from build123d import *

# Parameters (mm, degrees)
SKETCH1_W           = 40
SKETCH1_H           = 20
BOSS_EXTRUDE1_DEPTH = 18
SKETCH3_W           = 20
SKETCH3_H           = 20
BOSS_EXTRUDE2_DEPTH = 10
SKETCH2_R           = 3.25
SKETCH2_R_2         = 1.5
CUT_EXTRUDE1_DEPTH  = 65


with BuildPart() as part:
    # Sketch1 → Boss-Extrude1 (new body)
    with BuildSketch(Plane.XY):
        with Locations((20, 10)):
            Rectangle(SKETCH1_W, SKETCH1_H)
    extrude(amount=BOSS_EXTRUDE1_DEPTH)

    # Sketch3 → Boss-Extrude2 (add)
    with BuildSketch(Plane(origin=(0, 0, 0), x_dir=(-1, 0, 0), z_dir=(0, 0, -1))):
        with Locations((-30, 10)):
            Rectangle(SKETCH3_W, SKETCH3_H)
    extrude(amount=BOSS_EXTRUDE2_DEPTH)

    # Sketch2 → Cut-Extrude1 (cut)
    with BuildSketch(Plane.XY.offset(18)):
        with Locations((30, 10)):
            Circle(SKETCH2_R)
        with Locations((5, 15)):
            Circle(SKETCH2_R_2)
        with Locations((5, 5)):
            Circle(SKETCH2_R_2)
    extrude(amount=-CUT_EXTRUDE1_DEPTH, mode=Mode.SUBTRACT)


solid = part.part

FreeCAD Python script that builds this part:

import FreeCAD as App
import Part
import Sketcher
from FreeCAD import Vector
Q = App.Units.Quantity

doc = App.newDocument("Part")
params = doc.addObject("Spreadsheet::Sheet", "Params")
for row, (alias, value) in enumerate([
    ("sketch1_width", "40 mm"),
    ("sketch1_height", "20 mm"),
    ("pad1_length", "18 mm"),
    ("sketch2_width", "20 mm"),
    ("pad2_length", "10 mm"),
    ("sketch3_diameter", "3 mm"),
    ("sketch3_diameter2", "6.5 mm"),
    ("pocket1_length", "65 mm"),
], start=1):
    params.set(f"A{row}", alias)
    params.set(f"B{row}", "=" + value)
    params.setAlias(f"B{row}", alias)

body = doc.addObject("PartDesign::Body", "Body")

# Sketch on XY plane
sketch1 = body.newObject("Sketcher::SketchObject", "Sketch")
sketch1.AttachmentSupport = (doc.getObject("XY_Plane"), [""])
sketch1.MapMode = "FlatFace"
sketch1.addGeometry(Part.LineSegment(Vector(0, 20, 0), Vector(0, 0, 0)), False)
sketch1.addGeometry(Part.LineSegment(Vector(0, 0, 0), Vector(40, 0, 0)), False)
sketch1.addGeometry(Part.LineSegment(Vector(40, 0, 0), Vector(40, 20, 0)), False)
sketch1.addGeometry(Part.LineSegment(Vector(40, 20, 0), Vector(0, 20, 0)), False)
sketch1.addConstraint(Sketcher.Constraint("Coincident", 0, 2, 1, 1))
sketch1.addConstraint(Sketcher.Constraint("Coincident", 1, 2, 2, 1))
sketch1.addConstraint(Sketcher.Constraint("Coincident", 2, 2, 3, 1))
sketch1.addConstraint(Sketcher.Constraint("Coincident", 3, 2, 0, 1))
sketch1.addConstraint(Sketcher.Constraint("Vertical", 0))
sketch1.addConstraint(Sketcher.Constraint("Horizontal", 1))
sketch1.addConstraint(Sketcher.Constraint("Vertical", 2))
sketch1.addConstraint(Sketcher.Constraint("Horizontal", 3))
sketch1.addConstraint(Sketcher.Constraint("Coincident", 0, 2, -1, 1))
sketch1.addConstraint(Sketcher.Constraint("DistanceX", 1, 1, 1, 2, Q("40 mm")))
sketch1.addConstraint(Sketcher.Constraint("DistanceY", 0, 2, 0, 1, Q("20 mm")))
sketch1.setExpression("Constraints[9]", "Params.sketch1_width")
sketch1.setExpression("Constraints[10]", "Params.sketch1_height")
pad1 = body.newObject("PartDesign::Pad", "Pad")
pad1.Profile = sketch1
pad1.setExpression("Length", "Params.pad1_length")

# Sketch on XY plane
sketch2 = body.newObject("Sketcher::SketchObject", "Sketch001")
sketch2.AttachmentSupport = (doc.getObject("XY_Plane"), [""])
sketch2.MapMode = "FlatFace"
sketch2.addGeometry(Part.LineSegment(Vector(40, 20, 0), Vector(40, 0, 0)), False)
sketch2.addGeometry(Part.LineSegment(Vector(40, 0, 0), Vector(20, 0, 0)), False)
sketch2.addGeometry(Part.LineSegment(Vector(20, 0, 0), Vector(20, 20, 0)), False)
sketch2.addGeometry(Part.LineSegment(Vector(20, 20, 0), Vector(40, 20, 0)), False)
sketch2.addConstraint(Sketcher.Constraint("Coincident", 0, 2, 1, 1))
sketch2.addConstraint(Sketcher.Constraint("Coincident", 1, 2, 2, 1))
sketch2.addConstraint(Sketcher.Constraint("Coincident", 2, 2, 3, 1))
sketch2.addConstraint(Sketcher.Constraint("Coincident", 3, 2, 0, 1))
sketch2.addConstraint(Sketcher.Constraint("Vertical", 0))
sketch2.addConstraint(Sketcher.Constraint("Horizontal", 1))
sketch2.addConstraint(Sketcher.Constraint("Vertical", 2))
sketch2.addConstraint(Sketcher.Constraint("Horizontal", 3))
sketch2.addConstraint(Sketcher.Constraint("PointOnObject", 0, 2, -1))
sketch2.addConstraint(Sketcher.Constraint("Equal", 3, 0))
sketch2.addConstraint(Sketcher.Constraint("DistanceX", 1, 2, 1, 1, Q("20 mm")))
sketch2.addConstraint(Sketcher.Constraint("DistanceX", -1, 1, 0, 2, Q("40 mm")))
sketch2.setExpression("Constraints[10]", "Params.sketch2_width")
pad2 = body.newObject("PartDesign::Pad", "Pad001")
pad2.Profile = sketch2
pad2.setExpression("Length", "Params.pad2_length")
pad2.Reversed = True

# Sketch on XY plane
sketch3 = body.newObject("Sketcher::SketchObject", "Sketch002")
sketch3.AttachmentSupport = (doc.getObject("XY_Plane"), [""])
sketch3.MapMode = "FlatFace"
sketch3.AttachmentOffset = App.Placement(Vector(0, 0, 18), App.Rotation())
sketch3.addGeometry(Part.Circle(Vector(30, 10, 0), Vector(0, 0, 1), 3.2), False)
sketch3.addGeometry(Part.Circle(Vector(5, 15, 0), Vector(0, 0, 1), 1.5), False)
sketch3.addGeometry(Part.Circle(Vector(5, 5, 0), Vector(0, 0, 1), 1.5), False)
sketch3.addConstraint(Sketcher.Constraint("Equal", 1, 2))
sketch3.addConstraint(Sketcher.Constraint("Vertical", 1, 3, 2, 3))
sketch3.addConstraint(Sketcher.Constraint("Diameter", 1, Q("3 mm")))
sketch3.addConstraint(Sketcher.Constraint("Diameter", 0, Q("6.5 mm")))
sketch3.addConstraint(Sketcher.Constraint("DistanceX", -1, 1, 0, 3, Q("30 mm")))
sketch3.addConstraint(Sketcher.Constraint("DistanceY", -1, 1, 0, 3, Q("10 mm")))
sketch3.addConstraint(Sketcher.Constraint("DistanceX", -1, 1, 1, 3, Q("5 mm")))
sketch3.addConstraint(Sketcher.Constraint("DistanceY", -1, 1, 1, 3, Q("15 mm")))
sketch3.addConstraint(Sketcher.Constraint("DistanceY", -1, 1, 2, 3, Q("5 mm")))
sketch3.setExpression("Constraints[2]", "Params.sketch3_diameter")
sketch3.setExpression("Constraints[3]", "Params.sketch3_diameter2")
pocket1 = body.newObject("PartDesign::Pocket", "Pocket")
pocket1.Profile = sketch3
pocket1.setExpression("Length", "Params.pocket1_length")

doc.recompute()
